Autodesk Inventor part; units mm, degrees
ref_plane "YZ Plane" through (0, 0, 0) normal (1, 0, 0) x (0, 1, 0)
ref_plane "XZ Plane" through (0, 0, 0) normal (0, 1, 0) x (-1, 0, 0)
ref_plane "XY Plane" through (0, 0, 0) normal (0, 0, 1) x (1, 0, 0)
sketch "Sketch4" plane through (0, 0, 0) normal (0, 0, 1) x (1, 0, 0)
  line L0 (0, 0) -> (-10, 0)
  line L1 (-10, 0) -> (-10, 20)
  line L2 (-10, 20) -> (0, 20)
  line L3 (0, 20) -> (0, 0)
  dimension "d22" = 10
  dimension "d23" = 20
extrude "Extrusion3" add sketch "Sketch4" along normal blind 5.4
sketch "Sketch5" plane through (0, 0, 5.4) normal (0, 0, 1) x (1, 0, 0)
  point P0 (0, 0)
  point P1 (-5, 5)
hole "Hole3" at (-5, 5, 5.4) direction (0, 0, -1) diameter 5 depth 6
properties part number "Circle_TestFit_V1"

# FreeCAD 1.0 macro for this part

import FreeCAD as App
import Part
import Sketcher


def add_polygon(sketch, points):
    """Adds a closed chain of lines whose ends are joined by coincident constraints."""
    first, n = sketch.GeometryCount, len(points)
    for a, b in zip(points, points[1:] + points[:1]):
        sketch.addGeometry(Part.LineSegment(App.Vector(*a, 0), App.Vector(*b, 0)), False)
    for i in range(n):
        sketch.addConstraint(Sketcher.Constraint("Coincident", first + i, 2, first + (i + 1) % n, 1))

doc = App.newDocument("Part")
body = doc.addObject("PartDesign::Body", "Body")

# Sketch on XY plane
sketch1 = body.newObject("Sketcher::SketchObject", "Sketch")
sketch1.AttachmentSupport = (doc.getObject("XY_Plane"), [""])
sketch1.MapMode = "FlatFace"
add_polygon(sketch1, [(-10, 0), (0, 0), (0, 20), (-10, 20)])  # lines 0-3
sketch1.addConstraint([
    Sketcher.Constraint("Horizontal", 0),
    Sketcher.Constraint("Vertical", 1),
    Sketcher.Constraint("Horizontal", 2),
    Sketcher.Constraint("Vertical", 3),
    Sketcher.Constraint("Coincident", 0, 2, -1, 1),
    Sketcher.Constraint("DistanceX", 0, 1, 0, 2, 10.0),
    Sketcher.Constraint("DistanceY", 1, 1, 1, 2, 20.0),
])
pad1 = body.newObject("PartDesign::Pad", "Pad")
pad1.Profile = sketch1
pad1.Length = 5.4

# Sketch on XY plane
sketch2 = body.newObject("Sketcher::SketchObject", "Sketch001")
sketch2.AttachmentSupport = (doc.getObject("XY_Plane"), [""])
sketch2.MapMode = "FlatFace"
sketch2.AttachmentOffset = App.Placement(App.Vector(0, 0, 5.4), App.Rotation())
sketch2.addGeometry(Part.Circle(App.Vector(-5, 5, 0), App.Vector(0, 0, 1), 2.5), False)
sketch2.addConstraint([
    Sketcher.Constraint("Diameter", 0, 5.0),
    Sketcher.Constraint("DistanceX", 0, 3, -1, 1, 5.0),
    Sketcher.Constraint("DistanceY", -1, 1, 0, 3, 5.0),
])
doc.recompute()
hole = body.newObject("PartDesign::Hole", "Hole")
hole.Profile = sketch2
hole.ThreadType = "None"
hole.Diameter = 5
hole.DepthType = "Dimension"
hole.Depth = 6
hole.DrillPoint = "Flat"

doc.recompute()
